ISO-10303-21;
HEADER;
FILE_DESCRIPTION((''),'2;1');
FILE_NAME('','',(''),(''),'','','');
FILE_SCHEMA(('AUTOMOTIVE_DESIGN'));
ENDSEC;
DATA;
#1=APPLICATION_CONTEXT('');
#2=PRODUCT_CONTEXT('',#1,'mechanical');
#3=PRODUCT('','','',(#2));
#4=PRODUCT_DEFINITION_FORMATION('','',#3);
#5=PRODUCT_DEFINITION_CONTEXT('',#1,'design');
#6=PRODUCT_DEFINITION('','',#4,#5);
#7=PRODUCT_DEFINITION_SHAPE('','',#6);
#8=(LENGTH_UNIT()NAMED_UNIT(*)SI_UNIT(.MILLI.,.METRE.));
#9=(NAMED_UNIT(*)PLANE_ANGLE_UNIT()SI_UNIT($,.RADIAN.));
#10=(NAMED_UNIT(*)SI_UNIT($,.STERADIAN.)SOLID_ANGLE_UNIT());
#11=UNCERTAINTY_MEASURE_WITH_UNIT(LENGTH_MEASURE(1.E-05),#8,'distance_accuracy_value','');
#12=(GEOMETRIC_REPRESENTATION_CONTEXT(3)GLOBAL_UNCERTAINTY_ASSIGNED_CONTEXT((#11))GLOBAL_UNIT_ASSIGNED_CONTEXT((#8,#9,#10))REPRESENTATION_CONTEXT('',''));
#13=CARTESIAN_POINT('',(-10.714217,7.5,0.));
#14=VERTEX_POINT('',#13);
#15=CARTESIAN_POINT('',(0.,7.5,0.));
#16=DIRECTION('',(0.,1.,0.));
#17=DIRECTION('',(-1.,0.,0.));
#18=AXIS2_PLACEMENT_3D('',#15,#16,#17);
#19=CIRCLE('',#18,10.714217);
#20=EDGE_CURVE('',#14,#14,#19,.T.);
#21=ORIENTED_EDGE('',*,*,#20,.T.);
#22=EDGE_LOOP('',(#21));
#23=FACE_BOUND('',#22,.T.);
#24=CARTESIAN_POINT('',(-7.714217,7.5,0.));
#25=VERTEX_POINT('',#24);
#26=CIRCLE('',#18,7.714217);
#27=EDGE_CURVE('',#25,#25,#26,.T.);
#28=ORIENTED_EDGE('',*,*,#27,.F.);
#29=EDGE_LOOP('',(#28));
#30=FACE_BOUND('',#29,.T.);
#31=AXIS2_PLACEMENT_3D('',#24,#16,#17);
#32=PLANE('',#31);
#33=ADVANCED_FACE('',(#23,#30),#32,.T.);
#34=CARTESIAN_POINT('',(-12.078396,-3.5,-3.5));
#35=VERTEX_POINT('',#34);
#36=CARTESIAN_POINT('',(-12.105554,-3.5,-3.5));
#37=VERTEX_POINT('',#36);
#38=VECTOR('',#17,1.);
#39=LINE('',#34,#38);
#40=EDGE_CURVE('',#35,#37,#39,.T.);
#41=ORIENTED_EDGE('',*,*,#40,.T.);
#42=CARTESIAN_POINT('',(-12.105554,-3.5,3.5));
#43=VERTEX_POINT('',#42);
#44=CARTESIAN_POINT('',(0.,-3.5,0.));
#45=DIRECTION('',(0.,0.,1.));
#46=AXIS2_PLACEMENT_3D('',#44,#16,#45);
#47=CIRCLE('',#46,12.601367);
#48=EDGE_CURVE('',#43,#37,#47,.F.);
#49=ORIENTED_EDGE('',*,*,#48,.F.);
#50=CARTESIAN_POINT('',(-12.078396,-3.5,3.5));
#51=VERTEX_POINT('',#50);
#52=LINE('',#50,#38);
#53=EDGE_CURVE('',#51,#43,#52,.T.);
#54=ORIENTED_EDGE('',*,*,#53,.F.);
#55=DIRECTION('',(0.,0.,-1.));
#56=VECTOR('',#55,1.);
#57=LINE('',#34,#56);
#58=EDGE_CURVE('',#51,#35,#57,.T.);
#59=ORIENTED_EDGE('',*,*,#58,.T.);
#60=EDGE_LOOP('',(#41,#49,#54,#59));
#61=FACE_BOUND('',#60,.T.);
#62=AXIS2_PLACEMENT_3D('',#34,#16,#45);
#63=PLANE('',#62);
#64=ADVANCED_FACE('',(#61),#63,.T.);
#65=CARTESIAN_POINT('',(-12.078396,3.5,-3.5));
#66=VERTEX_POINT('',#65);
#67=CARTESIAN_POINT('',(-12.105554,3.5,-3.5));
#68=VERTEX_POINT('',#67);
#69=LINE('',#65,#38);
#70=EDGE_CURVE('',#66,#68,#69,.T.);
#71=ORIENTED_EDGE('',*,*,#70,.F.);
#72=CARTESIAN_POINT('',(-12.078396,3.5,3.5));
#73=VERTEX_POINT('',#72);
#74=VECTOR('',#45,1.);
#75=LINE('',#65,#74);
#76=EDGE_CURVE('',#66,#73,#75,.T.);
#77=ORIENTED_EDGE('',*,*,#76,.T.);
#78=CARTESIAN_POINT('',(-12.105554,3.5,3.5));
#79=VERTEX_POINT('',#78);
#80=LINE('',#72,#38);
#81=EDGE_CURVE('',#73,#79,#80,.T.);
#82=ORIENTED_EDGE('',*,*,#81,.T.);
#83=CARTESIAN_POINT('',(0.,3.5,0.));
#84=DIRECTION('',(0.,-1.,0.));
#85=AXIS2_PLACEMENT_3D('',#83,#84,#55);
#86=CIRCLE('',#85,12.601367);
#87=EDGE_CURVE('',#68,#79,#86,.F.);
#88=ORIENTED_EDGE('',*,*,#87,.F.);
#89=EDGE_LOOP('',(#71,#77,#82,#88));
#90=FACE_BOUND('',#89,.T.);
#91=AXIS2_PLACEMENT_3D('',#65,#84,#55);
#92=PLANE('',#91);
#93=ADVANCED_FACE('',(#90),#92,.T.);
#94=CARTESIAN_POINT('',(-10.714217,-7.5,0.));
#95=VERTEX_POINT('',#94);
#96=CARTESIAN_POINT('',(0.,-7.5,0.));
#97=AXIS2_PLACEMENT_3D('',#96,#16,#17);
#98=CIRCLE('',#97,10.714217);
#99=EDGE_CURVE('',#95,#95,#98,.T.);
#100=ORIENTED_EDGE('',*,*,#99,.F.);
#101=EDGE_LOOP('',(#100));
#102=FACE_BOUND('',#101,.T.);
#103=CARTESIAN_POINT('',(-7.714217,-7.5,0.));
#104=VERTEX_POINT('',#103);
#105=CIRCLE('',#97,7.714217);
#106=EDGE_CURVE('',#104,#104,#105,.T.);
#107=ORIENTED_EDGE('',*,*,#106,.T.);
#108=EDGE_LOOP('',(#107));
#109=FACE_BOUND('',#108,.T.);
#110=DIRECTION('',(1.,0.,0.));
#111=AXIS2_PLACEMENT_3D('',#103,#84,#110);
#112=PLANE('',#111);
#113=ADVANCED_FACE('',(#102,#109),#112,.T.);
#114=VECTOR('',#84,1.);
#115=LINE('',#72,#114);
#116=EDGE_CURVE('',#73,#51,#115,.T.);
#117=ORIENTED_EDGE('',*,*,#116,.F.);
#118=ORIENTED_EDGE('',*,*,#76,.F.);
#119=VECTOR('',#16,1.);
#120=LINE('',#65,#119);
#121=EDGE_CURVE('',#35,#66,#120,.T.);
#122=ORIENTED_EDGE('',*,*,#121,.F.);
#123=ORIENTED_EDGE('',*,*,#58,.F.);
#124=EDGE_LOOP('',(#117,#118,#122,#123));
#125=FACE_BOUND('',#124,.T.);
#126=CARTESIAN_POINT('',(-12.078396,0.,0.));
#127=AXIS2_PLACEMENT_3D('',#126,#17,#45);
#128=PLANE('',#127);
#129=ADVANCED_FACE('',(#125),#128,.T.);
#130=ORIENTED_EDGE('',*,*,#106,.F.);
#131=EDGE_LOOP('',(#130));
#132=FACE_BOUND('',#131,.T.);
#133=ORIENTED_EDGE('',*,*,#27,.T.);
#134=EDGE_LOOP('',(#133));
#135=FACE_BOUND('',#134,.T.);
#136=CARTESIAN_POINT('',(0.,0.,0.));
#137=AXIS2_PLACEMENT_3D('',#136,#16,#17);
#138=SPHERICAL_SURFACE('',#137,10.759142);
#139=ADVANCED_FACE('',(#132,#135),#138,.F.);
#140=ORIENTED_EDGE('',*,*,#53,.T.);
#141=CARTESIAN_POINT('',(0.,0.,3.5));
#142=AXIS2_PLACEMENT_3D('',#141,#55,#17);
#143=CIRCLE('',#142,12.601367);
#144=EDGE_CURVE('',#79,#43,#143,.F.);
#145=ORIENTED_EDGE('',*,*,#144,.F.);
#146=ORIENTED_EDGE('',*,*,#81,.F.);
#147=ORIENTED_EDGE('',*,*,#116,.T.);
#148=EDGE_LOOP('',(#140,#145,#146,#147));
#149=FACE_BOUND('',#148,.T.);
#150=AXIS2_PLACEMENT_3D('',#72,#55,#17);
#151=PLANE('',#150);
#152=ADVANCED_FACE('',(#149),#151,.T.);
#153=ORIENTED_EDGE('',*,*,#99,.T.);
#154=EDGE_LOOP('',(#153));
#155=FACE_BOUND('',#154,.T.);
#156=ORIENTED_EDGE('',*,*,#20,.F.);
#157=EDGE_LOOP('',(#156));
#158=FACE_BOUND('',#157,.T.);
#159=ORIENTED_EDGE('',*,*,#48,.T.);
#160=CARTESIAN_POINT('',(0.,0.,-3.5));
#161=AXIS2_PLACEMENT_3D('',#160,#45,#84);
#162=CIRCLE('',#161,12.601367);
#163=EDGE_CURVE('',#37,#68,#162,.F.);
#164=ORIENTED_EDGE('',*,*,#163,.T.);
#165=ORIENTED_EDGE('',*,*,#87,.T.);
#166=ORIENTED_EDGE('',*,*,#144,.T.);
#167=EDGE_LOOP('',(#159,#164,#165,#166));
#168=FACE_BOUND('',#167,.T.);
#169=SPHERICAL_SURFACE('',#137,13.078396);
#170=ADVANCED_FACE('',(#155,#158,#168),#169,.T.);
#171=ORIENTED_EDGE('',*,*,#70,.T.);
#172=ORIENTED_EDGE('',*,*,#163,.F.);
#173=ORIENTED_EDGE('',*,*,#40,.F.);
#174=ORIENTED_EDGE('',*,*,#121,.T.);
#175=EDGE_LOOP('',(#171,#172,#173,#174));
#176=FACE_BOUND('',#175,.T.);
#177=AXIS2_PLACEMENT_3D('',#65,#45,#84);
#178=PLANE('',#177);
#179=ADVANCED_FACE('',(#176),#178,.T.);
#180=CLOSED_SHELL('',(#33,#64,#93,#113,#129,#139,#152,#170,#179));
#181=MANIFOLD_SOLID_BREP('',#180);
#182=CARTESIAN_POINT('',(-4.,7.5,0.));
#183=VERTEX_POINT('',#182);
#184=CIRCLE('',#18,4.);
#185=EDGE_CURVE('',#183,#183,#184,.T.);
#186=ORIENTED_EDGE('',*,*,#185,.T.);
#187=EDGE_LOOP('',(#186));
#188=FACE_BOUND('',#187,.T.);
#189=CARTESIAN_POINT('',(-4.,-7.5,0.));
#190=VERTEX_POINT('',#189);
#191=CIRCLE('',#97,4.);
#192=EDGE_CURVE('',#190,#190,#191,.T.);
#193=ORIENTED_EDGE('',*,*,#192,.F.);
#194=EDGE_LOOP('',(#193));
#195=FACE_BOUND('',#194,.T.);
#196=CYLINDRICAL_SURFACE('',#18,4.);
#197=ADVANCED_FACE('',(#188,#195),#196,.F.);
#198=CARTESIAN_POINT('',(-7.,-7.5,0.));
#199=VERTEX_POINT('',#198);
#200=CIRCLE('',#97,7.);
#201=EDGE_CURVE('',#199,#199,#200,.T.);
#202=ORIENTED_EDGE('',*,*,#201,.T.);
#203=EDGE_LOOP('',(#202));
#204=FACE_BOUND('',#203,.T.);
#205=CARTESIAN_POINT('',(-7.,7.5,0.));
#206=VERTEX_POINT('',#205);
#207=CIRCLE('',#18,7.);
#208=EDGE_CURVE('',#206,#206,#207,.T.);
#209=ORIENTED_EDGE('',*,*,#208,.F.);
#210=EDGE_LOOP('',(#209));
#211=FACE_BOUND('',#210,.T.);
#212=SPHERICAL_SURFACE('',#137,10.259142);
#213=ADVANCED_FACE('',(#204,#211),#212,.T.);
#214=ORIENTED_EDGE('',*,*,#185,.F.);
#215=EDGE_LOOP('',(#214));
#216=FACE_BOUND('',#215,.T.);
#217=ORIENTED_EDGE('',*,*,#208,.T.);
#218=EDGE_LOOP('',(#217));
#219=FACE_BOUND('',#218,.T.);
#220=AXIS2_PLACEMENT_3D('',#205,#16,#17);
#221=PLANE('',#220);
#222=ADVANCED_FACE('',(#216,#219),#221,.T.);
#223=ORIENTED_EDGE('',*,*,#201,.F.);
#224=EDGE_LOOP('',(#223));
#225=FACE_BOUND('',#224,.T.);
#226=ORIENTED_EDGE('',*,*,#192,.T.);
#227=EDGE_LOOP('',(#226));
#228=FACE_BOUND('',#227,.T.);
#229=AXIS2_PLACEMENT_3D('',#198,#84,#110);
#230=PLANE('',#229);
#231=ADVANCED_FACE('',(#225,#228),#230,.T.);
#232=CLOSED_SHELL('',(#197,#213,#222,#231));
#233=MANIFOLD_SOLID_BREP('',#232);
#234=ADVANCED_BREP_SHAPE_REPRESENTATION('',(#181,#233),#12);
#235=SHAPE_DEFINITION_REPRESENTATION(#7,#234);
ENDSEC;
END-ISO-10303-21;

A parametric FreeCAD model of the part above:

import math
import FreeCAD as App
import Part
import Sketcher

V = App.Vector

doc = App.newDocument("Part")
body = doc.addObject("PartDesign::Body", "Body")
body.AllowCompound = True

# Sketch on XY plane
sketch1 = body.newObject("Sketcher::SketchObject", "Sketch")
sketch1.AttachmentSupport = (doc.getObject("XY_Plane"), [""])
sketch1.MapMode = "FlatFace"
sketch1.addGeometry([
    Part.LineSegment(V(-7.714217, 7.5, 0), V(-10.714217, 7.5, 0)),  # 0
    Part.ArcOfCircle(Part.Circle(V(0, 0, 0), V(0, 0, 1), 13.078396), math.radians(145.007807), math.radians(214.992193)),  # 1
    Part.LineSegment(V(-10.714217, -7.5, 0), V(-7.714217, -7.5, 0)),  # 2
    Part.ArcOfCircle(Part.Circle(V(0, 0, 0), V(0, 0, 1), 10.759142), math.radians(135.806674), math.radians(224.193326)),  # 3
    Part.LineSegment(V(-4, -7.5, 0), V(-4, 7.5, 0)),  # 4
    Part.LineSegment(V(-4, 7.5, 0), V(-7, 7.5, 0)),  # 5
    Part.ArcOfCircle(Part.Circle(V(0, 0, 0), V(0, 0, 1), 10.259142), math.radians(133.025066), math.radians(226.974934)),  # 6
    Part.LineSegment(V(-7, -7.5, 0), V(-4, -7.5, 0)),  # 7
], False)
sketch1.addConstraint([
    Sketcher.Constraint("Coincident", 0, 2, 1, 1),
    Sketcher.Constraint("Coincident", 1, 2, 2, 1),
    Sketcher.Constraint("Coincident", 2, 2, 3, 2),
    Sketcher.Constraint("Coincident", 3, 1, 0, 1),
    Sketcher.Constraint("Coincident", 4, 2, 5, 1),
    Sketcher.Constraint("Coincident", 5, 2, 6, 1),
    Sketcher.Constraint("Coincident", 6, 2, 7, 1),
    Sketcher.Constraint("Coincident", 7, 2, 4, 1),
    Sketcher.Constraint("Horizontal", 0),
    Sketcher.Constraint("Horizontal", 2),
    Sketcher.Constraint("Vertical", 4),
    Sketcher.Constraint("Horizontal", 5),
    Sketcher.Constraint("Horizontal", 7),
    Sketcher.Constraint("Coincident", 1, 3, -1, 1),
    Sketcher.Constraint("Coincident", 3, 3, -1, 1),
    Sketcher.Constraint("Coincident", 6, 3, -1, 1),
    Sketcher.Constraint("Horizontal", 3, 1, 4, 2),
    Sketcher.Constraint("Horizontal", 2, 2, 6, 2),
    Sketcher.Constraint("Vertical", 0, 2, 1, 2),
    Sketcher.Constraint("Equal", 2, 5),
    Sketcher.Constraint("DistanceX", 0, 2, 0, 1, 3.0),
    Sketcher.Constraint("DistanceY", 4, 1, 4, 2, 15.0),
    Sketcher.Constraint("DistanceX", 4, 2, -1, 1, 4.0),
    Sketcher.Constraint("Radius", 1, 13.078396),
])
revolution = body.newObject("PartDesign::Revolution", "Revolution")
revolution.Profile = sketch1
revolution.ReferenceAxis = (sketch1, ["V_Axis"])
revolution.Angle = 360

# Sketch on YZ plane
sketch2 = body.newObject("Sketcher::SketchObject", "Sketch001")
sketch2.AttachmentSupport = (doc.getObject("YZ_Plane"), [""])
sketch2.MapMode = "FlatFace"
sketch2.AttachmentOffset = App.Placement(V(0, 0, -13.078396), App.Rotation())
sketch2.addGeometry([
    Part.LineSegment(V(3.5, 3.5, 0), V(-3.5, 3.5, 0)),
    Part.LineSegment(V(-3.5, 3.5, 0), V(-3.5, -3.5, 0)),
    Part.LineSegment(V(-3.5, -3.5, 0), V(3.5, -3.5, 0)),
    Part.LineSegment(V(3.5, -3.5, 0), V(3.5, 3.5, 0)),
], False)
sketch2.addConstraint([
    Sketcher.Constraint("Coincident", 0, 2, 1, 1),
    Sketcher.Constraint("Coincident", 1, 2, 2, 1),
    Sketcher.Constraint("Coincident", 2, 2, 3, 1),
    Sketcher.Constraint("Coincident", 3, 2, 0, 1),
    Sketcher.Constraint("Horizontal", 0),
    Sketcher.Constraint("Vertical", 1),
    Sketcher.Constraint("Horizontal", 2),
    Sketcher.Constraint("Vertical", 3),
    Sketcher.Constraint("Symmetric", 0, 2, 2, 2, -1, 1),
    Sketcher.Constraint("Equal", 2, 1),
    Sketcher.Constraint("DistanceX", 0, 2, 0, 1, 7.0),
])
pocket1 = body.newObject("PartDesign::Pocket", "Pocket")
pocket1.Profile = sketch2
pocket1.Length = 1
pocket1.Reversed = True

doc.recompute()
